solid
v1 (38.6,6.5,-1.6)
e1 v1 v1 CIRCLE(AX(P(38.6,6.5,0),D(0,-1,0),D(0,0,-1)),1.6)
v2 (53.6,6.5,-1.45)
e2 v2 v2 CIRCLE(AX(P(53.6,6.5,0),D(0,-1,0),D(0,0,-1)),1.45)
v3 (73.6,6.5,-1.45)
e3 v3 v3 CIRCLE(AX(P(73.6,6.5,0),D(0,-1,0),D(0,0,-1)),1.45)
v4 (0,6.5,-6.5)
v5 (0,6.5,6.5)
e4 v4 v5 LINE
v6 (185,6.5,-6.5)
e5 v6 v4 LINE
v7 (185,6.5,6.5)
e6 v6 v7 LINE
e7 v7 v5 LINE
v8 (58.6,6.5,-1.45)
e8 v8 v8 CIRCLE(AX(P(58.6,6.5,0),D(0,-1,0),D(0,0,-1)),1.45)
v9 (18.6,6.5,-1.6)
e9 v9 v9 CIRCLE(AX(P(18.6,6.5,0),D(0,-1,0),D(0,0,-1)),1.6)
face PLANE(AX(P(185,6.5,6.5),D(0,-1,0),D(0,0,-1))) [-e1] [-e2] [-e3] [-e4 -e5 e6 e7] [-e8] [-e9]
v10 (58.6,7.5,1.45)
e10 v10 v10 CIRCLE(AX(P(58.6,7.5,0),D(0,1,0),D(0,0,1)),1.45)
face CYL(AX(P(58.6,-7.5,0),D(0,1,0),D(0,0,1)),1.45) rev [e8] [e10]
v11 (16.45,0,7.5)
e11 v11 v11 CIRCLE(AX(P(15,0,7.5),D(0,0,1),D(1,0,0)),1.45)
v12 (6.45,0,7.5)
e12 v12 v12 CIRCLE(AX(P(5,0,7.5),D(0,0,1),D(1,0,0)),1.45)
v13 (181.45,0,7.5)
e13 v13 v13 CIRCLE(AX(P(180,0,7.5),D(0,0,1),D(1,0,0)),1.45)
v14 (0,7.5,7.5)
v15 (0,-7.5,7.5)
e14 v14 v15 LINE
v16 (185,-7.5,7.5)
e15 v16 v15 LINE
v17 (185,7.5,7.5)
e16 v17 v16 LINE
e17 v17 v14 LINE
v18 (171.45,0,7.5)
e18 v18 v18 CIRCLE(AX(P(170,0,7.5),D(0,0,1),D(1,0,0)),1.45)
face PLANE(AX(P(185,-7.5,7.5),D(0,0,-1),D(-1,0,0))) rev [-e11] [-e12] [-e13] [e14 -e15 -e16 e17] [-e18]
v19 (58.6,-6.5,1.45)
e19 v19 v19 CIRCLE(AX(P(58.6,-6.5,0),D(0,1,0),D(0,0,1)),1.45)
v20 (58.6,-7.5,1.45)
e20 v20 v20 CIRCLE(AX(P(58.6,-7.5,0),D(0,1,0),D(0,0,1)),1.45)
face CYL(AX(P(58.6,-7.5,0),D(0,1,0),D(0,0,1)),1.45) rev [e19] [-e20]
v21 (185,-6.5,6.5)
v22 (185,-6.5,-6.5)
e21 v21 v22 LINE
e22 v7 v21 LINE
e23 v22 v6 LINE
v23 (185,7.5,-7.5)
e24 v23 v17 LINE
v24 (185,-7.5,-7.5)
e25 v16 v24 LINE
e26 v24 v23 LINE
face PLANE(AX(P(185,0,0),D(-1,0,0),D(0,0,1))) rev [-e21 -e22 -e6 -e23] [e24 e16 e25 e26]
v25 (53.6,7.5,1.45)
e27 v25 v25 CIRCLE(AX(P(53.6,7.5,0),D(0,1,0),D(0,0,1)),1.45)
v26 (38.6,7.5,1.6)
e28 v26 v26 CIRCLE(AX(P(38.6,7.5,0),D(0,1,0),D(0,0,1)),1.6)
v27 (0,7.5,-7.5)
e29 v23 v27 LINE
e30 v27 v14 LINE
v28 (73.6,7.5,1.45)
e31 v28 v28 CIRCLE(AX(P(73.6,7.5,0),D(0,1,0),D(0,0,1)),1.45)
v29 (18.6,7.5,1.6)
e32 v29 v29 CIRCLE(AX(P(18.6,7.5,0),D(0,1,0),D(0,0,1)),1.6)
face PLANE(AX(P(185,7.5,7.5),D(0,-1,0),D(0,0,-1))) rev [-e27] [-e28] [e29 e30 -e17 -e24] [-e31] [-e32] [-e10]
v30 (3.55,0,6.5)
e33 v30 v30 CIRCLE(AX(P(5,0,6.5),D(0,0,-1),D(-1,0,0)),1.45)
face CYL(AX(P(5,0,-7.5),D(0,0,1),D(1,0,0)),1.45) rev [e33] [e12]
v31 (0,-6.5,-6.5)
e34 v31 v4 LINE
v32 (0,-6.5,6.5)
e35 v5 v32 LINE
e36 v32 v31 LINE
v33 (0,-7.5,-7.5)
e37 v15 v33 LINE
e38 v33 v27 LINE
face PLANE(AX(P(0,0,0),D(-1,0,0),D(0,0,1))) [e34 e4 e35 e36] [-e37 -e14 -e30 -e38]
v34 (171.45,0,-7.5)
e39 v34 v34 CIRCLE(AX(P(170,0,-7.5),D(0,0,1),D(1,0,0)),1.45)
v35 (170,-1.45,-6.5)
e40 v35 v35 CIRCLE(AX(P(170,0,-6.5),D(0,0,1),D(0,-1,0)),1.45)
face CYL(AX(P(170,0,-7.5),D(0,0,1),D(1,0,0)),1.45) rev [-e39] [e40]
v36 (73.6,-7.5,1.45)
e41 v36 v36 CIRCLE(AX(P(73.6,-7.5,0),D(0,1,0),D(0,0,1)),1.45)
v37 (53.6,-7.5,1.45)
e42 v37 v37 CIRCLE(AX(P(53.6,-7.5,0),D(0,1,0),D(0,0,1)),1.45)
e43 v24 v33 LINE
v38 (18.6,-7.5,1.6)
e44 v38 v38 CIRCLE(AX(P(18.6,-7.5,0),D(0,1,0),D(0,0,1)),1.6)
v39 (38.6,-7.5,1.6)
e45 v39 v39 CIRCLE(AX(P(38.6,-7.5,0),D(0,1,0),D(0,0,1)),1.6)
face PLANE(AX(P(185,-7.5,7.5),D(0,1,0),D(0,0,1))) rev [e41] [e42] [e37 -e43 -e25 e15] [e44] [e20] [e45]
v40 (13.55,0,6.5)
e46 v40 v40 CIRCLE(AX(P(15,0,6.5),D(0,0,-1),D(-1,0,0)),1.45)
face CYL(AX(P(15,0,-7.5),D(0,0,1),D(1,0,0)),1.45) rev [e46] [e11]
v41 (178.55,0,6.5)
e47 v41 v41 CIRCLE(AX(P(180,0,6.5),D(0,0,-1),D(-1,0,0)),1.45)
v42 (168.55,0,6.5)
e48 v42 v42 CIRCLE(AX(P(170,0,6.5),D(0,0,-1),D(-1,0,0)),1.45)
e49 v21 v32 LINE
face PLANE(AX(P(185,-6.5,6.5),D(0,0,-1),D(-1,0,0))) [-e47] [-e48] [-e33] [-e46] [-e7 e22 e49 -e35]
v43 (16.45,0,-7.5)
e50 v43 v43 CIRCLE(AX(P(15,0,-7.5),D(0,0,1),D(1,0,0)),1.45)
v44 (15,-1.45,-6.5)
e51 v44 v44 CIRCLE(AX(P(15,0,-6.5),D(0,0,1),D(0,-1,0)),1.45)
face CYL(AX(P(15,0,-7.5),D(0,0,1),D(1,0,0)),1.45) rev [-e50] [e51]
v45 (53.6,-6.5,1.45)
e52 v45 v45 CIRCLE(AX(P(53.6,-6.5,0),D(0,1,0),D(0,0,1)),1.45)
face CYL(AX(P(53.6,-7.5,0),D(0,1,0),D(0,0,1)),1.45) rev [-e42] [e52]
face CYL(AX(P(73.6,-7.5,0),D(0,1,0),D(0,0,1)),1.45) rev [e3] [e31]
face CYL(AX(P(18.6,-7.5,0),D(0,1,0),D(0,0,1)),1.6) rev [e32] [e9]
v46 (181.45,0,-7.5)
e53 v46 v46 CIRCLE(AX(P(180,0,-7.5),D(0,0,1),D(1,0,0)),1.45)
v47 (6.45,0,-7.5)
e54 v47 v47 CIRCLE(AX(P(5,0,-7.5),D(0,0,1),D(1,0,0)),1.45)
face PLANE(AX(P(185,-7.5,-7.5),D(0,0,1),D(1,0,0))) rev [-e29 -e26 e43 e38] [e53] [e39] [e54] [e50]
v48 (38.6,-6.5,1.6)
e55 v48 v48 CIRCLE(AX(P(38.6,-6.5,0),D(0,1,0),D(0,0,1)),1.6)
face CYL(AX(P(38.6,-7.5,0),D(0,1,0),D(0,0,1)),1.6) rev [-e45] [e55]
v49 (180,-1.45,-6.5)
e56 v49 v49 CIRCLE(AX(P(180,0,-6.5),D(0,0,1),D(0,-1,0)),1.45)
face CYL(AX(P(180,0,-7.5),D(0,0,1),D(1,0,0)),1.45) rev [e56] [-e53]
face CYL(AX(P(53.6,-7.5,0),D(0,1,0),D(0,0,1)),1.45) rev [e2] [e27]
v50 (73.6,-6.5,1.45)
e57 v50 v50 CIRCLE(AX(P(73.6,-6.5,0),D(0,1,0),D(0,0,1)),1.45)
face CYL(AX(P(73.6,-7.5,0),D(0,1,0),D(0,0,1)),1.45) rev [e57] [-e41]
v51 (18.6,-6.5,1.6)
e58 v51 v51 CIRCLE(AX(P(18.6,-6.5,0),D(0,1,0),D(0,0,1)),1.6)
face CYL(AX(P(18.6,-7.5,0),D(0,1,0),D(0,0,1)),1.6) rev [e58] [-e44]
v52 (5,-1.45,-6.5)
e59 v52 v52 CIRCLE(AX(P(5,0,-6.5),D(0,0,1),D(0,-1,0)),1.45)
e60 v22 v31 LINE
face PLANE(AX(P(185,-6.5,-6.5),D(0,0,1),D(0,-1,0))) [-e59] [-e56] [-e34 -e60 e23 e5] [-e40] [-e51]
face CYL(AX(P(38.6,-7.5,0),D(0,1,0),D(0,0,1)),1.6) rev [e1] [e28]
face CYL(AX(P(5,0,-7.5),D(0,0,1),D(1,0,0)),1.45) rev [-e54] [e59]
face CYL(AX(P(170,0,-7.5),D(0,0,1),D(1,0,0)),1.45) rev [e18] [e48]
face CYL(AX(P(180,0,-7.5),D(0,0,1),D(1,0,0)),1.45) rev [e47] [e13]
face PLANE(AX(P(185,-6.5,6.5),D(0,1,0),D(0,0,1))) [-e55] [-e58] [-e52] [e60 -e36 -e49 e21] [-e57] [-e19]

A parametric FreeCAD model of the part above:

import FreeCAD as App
import Part
import Sketcher

V = App.Vector


def add_polygon(sketch, points):
    """Adds a closed chain of lines whose ends are joined by coincident constraints."""
    first, n = sketch.GeometryCount, len(points)
    for a, b in zip(points, points[1:] + points[:1]):
        sketch.addGeometry(Part.LineSegment(App.Vector(*a, 0), App.Vector(*b, 0)), False)
    for i in range(n):
        sketch.addConstraint(Sketcher.Constraint("Coincident", first + i, 2, first + (i + 1) % n, 1))

doc = App.newDocument("Part")
body = doc.addObject("PartDesign::Body", "Body")

sketch1 = body.newObject("Sketcher::SketchObject", "Sketch")
sketch1.AttachmentSupport = (doc.getObject("YZ_Plane"), [""])
sketch1.MapMode = "FlatFace"
add_polygon(sketch1, [(8, 8), (-8, 8), (-8, -8), (8, -8)])
add_polygon(sketch1, [(-6, -6), (-6, 6), (6, 6), (6, -6)])
sketch1.addConstraint(Sketcher.Constraint("Horizontal", 0))
sketch1.addConstraint(Sketcher.Constraint("Vertical", 1))
sketch1.addConstraint(Sketcher.Constraint("Horizontal", 2))
sketch1.addConstraint(Sketcher.Constraint("Vertical", 3))
sketch1.addConstraint(Sketcher.Constraint("Vertical", 4))
sketch1.addConstraint(Sketcher.Constraint("Horizontal", 5))
sketch1.addConstraint(Sketcher.Constraint("Vertical", 6))
sketch1.addConstraint(Sketcher.Constraint("Horizontal", 7))
sketch1.addConstraint(Sketcher.Constraint("Symmetric", 0, 2, 2, 2, -1, 1))
sketch1.addConstraint(Sketcher.Constraint("Symmetric", 4, 2, 6, 2, -1, 1))
sketch1.addConstraint(Sketcher.Constraint("Equal", 2, 1))
sketch1.addConstraint(Sketcher.Constraint("Equal", 7, 4))
sketch1.addConstraint(Sketcher.Constraint("DistanceX", 0, 2, 0, 1, 15.0))
sketch1.addConstraint(Sketcher.Constraint("DistanceX", 5, 1, 5, 2, 13.0))
pad1 = body.newObject("PartDesign::Pad", "Pad")
pad1.Profile = sketch1
pad1.Length = 185

sketch2 = body.newObject("Sketcher::SketchObject", "Sketch001")
sketch2.AttachmentSupport = (doc.getObject("XY_Plane"), [""])
sketch2.MapMode = "FlatFace"
sketch2.AttachmentOffset = App.Placement(V(0, 0, 7.5), App.Rotation())
sketch2.addGeometry(Part.Circle(V(180, 0, 0), V(0, 0, 1), 1.4), False)
sketch2.addGeometry(Part.Circle(V(170, 0, 0), V(0, 0, 1), 1.4), False)
sketch2.addGeometry(Part.Circle(V(5, 0, 0), V(0, 0, 1), 1.4), False)
sketch2.addGeometry(Part.Circle(V(15, 0, 0), V(0, 0, 1), 1.4), False)
sketch2.addConstraint(Sketcher.Constraint("Equal", 0, 1))
sketch2.addConstraint(Sketcher.Constraint("Equal", 1, 2))
sketch2.addConstraint(Sketcher.Constraint("Equal", 2, 3))
sketch2.addConstraint(Sketcher.Constraint("PointOnObject", 0, 3, -1))
sketch2.addConstraint(Sketcher.Constraint("PointOnObject", 1, 3, -1))
sketch2.addConstraint(Sketcher.Constraint("PointOnObject", 2, 3, -1))
sketch2.addConstraint(Sketcher.Constraint("PointOnObject", 3, 3, -1))
sketch2.addConstraint(Sketcher.Constraint("Diameter", 0, 2.9))
sketch2.addConstraint(Sketcher.Constraint("DistanceX", -1, 1, 0, 3, 180.0))
sketch2.addConstraint(Sketcher.Constraint("DistanceX", -1, 1, 1, 3, 170.0))
sketch2.addConstraint(Sketcher.Constraint("DistanceX", -1, 1, 2, 3, 5.0))
sketch2.addConstraint(Sketcher.Constraint("DistanceX", -1, 1, 3, 3, 15.0))
pocket1 = body.newObject("PartDesign::Pocket", "Pocket")
pocket1.Profile = sketch2
pocket1.Type = "ThroughAll"

sketch3 = body.newObject("Sketcher::SketchObject", "Sketch002")
sketch3.AttachmentSupport = (doc.getObject("XZ_Plane"), [""])
sketch3.MapMode = "FlatFace"
sketch3.AttachmentOffset = App.Placement(V(0, 0, -7.5), App.Rotation())
sketch3.addGeometry(Part.Circle(V(38.6, 0, 0), V(0, 0, 1), 1.6), False)
sketch3.addGeometry(Part.Circle(V(18.6, 0, 0), V(0, 0, 1), 1.6), False)
sketch3.addGeometry(Part.Circle(V(53.6, 0, 0), V(0, 0, 1), 1.4), False)
sketch3.addGeometry(Part.Circle(V(58.6, 0, 0), V(0, 0, 1), 1.4), False)
sketch3.addGeometry(Part.Circle(V(73.6, 0, 0), V(0, 0, 1), 1.4), False)
sketch3.addConstraint(Sketcher.Constraint("Equal", 0, 1))
sketch3.addConstraint(Sketcher.Constraint("Equal", 2, 3))
sketch3.addConstraint(Sketcher.Constraint("Equal", 3, 4))
sketch3.addConstraint(Sketcher.Constraint("PointOnObject", 0, 3, -1))
sketch3.addConstraint(Sketcher.Constraint("PointOnObject", 1, 3, -1))
sketch3.addConstraint(Sketcher.Constraint("PointOnObject", 2, 3, -1))
sketch3.addConstraint(Sketcher.Constraint("PointOnObject", 3, 3, -1))
sketch3.addConstraint(Sketcher.Constraint("PointOnObject", 4, 3, -1))
sketch3.addConstraint(Sketcher.Constraint("Diameter", 0, 3.2))
sketch3.addConstraint(Sketcher.Constraint("Diameter", 2, 2.9))
sketch3.addConstraint(Sketcher.Constraint("DistanceX", 1, 3, 0, 3, 20.0))
sketch3.addConstraint(Sketcher.Constraint("DistanceX", 0, 3, 2, 3, 15.0))
sketch3.addConstraint(Sketcher.Constraint("DistanceX", 2, 3, 3, 3, 5.0))
sketch3.addConstraint(Sketcher.Constraint("DistanceX", 3, 3, 4, 3, 15.0))
sketch3.addConstraint(Sketcher.Constraint("DistanceX", -1, 1, 0, 3, 38.6))
pocket2 = body.newObject("PartDesign::Pocket", "Pocket001")
pocket2.Profile = sketch3
pocket2.Type = "ThroughAll"
pocket2.Reversed = True

doc.recompute()
